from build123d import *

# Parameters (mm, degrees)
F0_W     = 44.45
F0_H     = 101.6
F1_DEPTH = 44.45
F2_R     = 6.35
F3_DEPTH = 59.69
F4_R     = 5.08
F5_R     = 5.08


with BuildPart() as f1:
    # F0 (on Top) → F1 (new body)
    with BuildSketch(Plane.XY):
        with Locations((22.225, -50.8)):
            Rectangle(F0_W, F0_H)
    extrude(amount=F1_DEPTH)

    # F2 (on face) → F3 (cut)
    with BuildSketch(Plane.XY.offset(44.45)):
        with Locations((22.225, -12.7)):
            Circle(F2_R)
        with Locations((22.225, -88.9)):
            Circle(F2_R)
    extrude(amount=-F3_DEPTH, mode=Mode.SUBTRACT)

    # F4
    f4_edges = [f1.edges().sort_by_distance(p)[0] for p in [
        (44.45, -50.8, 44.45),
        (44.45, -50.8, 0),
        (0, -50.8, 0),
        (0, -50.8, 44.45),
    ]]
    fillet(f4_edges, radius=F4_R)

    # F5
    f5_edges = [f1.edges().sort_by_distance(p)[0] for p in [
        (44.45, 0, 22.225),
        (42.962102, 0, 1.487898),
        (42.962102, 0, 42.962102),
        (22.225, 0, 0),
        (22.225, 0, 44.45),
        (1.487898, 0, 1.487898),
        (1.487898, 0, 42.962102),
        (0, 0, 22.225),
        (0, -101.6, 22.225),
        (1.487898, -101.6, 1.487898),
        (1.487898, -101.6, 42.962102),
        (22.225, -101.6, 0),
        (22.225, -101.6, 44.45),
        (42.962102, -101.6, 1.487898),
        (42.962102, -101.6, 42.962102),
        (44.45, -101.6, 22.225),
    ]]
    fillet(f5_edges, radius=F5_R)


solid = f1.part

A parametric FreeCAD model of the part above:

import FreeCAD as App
import Part
import Sketcher
Q = App.Units.Quantity


def edges_at(feature, points):
    """Names of the edges that pass closest to the given points."""
    edges = feature.Shape.Edges
    near = lambda p: min(range(len(edges)), key=lambda i: edges[i].distToShape(Part.Vertex(*p))[0])
    return sorted({f"Edge{near(p) + 1}" for p in points})

doc = App.newDocument("Part")
body = doc.addObject("PartDesign::Body", "Body")

sketch1 = body.newObject("Sketcher::SketchObject", "Sketch")
sketch1.AttachmentSupport = (doc.getObject("XY_Plane"), [""])
sketch1.MapMode = "FlatFace"
sketch1.addGeometry(Part.LineSegment(App.Vector(0, 0, 0), App.Vector(0, -102, 0)), False)
sketch1.addGeometry(Part.LineSegment(App.Vector(0, -102, 0), App.Vector(44, -102, 0)), False)
sketch1.addGeometry(Part.LineSegment(App.Vector(44, -102, 0), App.Vector(44, 0, 0)), False)
sketch1.addGeometry(Part.LineSegment(App.Vector(44, 0, 0), App.Vector(0, 0, 0)), False)
sketch1.addConstraint(Sketcher.Constraint("Coincident", 0, 2, 1, 1))
sketch1.addConstraint(Sketcher.Constraint("Coincident", 1, 2, 2, 1))
sketch1.addConstraint(Sketcher.Constraint("Coincident", 2, 2, 3, 1))
sketch1.addConstraint(Sketcher.Constraint("Coincident", 3, 2, 0, 1))
sketch1.addConstraint(Sketcher.Constraint("Vertical", 0))
sketch1.addConstraint(Sketcher.Constraint("Horizontal", 1))
sketch1.addConstraint(Sketcher.Constraint("Vertical", 2))
sketch1.addConstraint(Sketcher.Constraint("Horizontal", 3))
sketch1.addConstraint(Sketcher.Constraint("Coincident", 3, 2, -1, 1))
sketch1.addConstraint(Sketcher.Constraint("DistanceY", 0, 2, 0, 1, Q("4 in")))
sketch1.addConstraint(Sketcher.Constraint("DistanceX", 1, 1, 1, 2, Q("1.75 in")))
pad1 = body.newObject("PartDesign::Pad", "Pad")
pad1.Profile = sketch1
pad1.Length = Q("1.75 in")

sketch2 = body.newObject("Sketcher::SketchObject", "Sketch001")
sketch2.AttachmentSupport = (doc.getObject("XY_Plane"), [""])
sketch2.MapMode = "FlatFace"
sketch2.AttachmentOffset = App.Placement(App.Vector(0, 0, 1.75 * 25.4), App.Rotation())
sketch2.addGeometry(Part.Circle(App.Vector(22, -13, 0), App.Vector(0, 0, 1), 6), False)
sketch2.addGeometry(Part.Circle(App.Vector(22, -89, 0), App.Vector(0, 0, 1), 6), False)
sketch2.addConstraint(Sketcher.Constraint("Equal", 0, 1))
sketch2.addConstraint(Sketcher.Constraint("Vertical", 0, 3, 1, 3))
sketch2.addConstraint(Sketcher.Constraint("Diameter", 0, Q("0.5 in")))
sketch2.addConstraint(Sketcher.Constraint("DistanceY", 1, 3, 0, 3, Q("3 in")))
sketch2.addConstraint(Sketcher.Constraint("DistanceY", 0, 3, -1, 1, Q("0.5 in")))
sketch2.addConstraint(Sketcher.Constraint("DistanceX", -1, 1, 0, 3, Q("0.875 in")))
pocket1 = body.newObject("PartDesign::Pocket", "Pocket")
pocket1.Profile = sketch2
pocket1.Length = Q("2.35 in")
doc.recompute()

fillet = body.newObject("PartDesign::Fillet", "Fillet")
fillet.Base = (pocket1, edges_at(pocket1, [
    (44.45, -50.8, 44.45),
    (44.45, -50.8, 0),
    (0, -50.8, 0),
    (0, -50.8, 44.45),
]))
fillet.Radius = Q("0.2 in")
doc.recompute()

fillet2 = body.newObject("PartDesign::Fillet", "Fillet001")
fillet2.Base = (fillet, edges_at(fillet, [
    (44.45, 0, 22.225),
    (42.962, 0, 1.488),
    (42.962, 0, 42.962),
    (22.225, 0, 0),
    (22.225, 0, 44.45),
    (1.488, 0, 1.488),
    (1.488, 0, 42.962),
    (0, 0, 22.225),
    (0, -101.6, 22.225),
    (1.488, -101.6, 1.488),
    (1.488, -101.6, 42.962),
    (22.225, -101.6, 0),
    (22.225, -101.6, 44.45),
    (42.962, -101.6, 1.488),
    (42.962, -101.6, 42.962),
    (44.45, -101.6, 22.225),
]))
fillet2.Radius = Q("0.2 in")

doc.recompute()
